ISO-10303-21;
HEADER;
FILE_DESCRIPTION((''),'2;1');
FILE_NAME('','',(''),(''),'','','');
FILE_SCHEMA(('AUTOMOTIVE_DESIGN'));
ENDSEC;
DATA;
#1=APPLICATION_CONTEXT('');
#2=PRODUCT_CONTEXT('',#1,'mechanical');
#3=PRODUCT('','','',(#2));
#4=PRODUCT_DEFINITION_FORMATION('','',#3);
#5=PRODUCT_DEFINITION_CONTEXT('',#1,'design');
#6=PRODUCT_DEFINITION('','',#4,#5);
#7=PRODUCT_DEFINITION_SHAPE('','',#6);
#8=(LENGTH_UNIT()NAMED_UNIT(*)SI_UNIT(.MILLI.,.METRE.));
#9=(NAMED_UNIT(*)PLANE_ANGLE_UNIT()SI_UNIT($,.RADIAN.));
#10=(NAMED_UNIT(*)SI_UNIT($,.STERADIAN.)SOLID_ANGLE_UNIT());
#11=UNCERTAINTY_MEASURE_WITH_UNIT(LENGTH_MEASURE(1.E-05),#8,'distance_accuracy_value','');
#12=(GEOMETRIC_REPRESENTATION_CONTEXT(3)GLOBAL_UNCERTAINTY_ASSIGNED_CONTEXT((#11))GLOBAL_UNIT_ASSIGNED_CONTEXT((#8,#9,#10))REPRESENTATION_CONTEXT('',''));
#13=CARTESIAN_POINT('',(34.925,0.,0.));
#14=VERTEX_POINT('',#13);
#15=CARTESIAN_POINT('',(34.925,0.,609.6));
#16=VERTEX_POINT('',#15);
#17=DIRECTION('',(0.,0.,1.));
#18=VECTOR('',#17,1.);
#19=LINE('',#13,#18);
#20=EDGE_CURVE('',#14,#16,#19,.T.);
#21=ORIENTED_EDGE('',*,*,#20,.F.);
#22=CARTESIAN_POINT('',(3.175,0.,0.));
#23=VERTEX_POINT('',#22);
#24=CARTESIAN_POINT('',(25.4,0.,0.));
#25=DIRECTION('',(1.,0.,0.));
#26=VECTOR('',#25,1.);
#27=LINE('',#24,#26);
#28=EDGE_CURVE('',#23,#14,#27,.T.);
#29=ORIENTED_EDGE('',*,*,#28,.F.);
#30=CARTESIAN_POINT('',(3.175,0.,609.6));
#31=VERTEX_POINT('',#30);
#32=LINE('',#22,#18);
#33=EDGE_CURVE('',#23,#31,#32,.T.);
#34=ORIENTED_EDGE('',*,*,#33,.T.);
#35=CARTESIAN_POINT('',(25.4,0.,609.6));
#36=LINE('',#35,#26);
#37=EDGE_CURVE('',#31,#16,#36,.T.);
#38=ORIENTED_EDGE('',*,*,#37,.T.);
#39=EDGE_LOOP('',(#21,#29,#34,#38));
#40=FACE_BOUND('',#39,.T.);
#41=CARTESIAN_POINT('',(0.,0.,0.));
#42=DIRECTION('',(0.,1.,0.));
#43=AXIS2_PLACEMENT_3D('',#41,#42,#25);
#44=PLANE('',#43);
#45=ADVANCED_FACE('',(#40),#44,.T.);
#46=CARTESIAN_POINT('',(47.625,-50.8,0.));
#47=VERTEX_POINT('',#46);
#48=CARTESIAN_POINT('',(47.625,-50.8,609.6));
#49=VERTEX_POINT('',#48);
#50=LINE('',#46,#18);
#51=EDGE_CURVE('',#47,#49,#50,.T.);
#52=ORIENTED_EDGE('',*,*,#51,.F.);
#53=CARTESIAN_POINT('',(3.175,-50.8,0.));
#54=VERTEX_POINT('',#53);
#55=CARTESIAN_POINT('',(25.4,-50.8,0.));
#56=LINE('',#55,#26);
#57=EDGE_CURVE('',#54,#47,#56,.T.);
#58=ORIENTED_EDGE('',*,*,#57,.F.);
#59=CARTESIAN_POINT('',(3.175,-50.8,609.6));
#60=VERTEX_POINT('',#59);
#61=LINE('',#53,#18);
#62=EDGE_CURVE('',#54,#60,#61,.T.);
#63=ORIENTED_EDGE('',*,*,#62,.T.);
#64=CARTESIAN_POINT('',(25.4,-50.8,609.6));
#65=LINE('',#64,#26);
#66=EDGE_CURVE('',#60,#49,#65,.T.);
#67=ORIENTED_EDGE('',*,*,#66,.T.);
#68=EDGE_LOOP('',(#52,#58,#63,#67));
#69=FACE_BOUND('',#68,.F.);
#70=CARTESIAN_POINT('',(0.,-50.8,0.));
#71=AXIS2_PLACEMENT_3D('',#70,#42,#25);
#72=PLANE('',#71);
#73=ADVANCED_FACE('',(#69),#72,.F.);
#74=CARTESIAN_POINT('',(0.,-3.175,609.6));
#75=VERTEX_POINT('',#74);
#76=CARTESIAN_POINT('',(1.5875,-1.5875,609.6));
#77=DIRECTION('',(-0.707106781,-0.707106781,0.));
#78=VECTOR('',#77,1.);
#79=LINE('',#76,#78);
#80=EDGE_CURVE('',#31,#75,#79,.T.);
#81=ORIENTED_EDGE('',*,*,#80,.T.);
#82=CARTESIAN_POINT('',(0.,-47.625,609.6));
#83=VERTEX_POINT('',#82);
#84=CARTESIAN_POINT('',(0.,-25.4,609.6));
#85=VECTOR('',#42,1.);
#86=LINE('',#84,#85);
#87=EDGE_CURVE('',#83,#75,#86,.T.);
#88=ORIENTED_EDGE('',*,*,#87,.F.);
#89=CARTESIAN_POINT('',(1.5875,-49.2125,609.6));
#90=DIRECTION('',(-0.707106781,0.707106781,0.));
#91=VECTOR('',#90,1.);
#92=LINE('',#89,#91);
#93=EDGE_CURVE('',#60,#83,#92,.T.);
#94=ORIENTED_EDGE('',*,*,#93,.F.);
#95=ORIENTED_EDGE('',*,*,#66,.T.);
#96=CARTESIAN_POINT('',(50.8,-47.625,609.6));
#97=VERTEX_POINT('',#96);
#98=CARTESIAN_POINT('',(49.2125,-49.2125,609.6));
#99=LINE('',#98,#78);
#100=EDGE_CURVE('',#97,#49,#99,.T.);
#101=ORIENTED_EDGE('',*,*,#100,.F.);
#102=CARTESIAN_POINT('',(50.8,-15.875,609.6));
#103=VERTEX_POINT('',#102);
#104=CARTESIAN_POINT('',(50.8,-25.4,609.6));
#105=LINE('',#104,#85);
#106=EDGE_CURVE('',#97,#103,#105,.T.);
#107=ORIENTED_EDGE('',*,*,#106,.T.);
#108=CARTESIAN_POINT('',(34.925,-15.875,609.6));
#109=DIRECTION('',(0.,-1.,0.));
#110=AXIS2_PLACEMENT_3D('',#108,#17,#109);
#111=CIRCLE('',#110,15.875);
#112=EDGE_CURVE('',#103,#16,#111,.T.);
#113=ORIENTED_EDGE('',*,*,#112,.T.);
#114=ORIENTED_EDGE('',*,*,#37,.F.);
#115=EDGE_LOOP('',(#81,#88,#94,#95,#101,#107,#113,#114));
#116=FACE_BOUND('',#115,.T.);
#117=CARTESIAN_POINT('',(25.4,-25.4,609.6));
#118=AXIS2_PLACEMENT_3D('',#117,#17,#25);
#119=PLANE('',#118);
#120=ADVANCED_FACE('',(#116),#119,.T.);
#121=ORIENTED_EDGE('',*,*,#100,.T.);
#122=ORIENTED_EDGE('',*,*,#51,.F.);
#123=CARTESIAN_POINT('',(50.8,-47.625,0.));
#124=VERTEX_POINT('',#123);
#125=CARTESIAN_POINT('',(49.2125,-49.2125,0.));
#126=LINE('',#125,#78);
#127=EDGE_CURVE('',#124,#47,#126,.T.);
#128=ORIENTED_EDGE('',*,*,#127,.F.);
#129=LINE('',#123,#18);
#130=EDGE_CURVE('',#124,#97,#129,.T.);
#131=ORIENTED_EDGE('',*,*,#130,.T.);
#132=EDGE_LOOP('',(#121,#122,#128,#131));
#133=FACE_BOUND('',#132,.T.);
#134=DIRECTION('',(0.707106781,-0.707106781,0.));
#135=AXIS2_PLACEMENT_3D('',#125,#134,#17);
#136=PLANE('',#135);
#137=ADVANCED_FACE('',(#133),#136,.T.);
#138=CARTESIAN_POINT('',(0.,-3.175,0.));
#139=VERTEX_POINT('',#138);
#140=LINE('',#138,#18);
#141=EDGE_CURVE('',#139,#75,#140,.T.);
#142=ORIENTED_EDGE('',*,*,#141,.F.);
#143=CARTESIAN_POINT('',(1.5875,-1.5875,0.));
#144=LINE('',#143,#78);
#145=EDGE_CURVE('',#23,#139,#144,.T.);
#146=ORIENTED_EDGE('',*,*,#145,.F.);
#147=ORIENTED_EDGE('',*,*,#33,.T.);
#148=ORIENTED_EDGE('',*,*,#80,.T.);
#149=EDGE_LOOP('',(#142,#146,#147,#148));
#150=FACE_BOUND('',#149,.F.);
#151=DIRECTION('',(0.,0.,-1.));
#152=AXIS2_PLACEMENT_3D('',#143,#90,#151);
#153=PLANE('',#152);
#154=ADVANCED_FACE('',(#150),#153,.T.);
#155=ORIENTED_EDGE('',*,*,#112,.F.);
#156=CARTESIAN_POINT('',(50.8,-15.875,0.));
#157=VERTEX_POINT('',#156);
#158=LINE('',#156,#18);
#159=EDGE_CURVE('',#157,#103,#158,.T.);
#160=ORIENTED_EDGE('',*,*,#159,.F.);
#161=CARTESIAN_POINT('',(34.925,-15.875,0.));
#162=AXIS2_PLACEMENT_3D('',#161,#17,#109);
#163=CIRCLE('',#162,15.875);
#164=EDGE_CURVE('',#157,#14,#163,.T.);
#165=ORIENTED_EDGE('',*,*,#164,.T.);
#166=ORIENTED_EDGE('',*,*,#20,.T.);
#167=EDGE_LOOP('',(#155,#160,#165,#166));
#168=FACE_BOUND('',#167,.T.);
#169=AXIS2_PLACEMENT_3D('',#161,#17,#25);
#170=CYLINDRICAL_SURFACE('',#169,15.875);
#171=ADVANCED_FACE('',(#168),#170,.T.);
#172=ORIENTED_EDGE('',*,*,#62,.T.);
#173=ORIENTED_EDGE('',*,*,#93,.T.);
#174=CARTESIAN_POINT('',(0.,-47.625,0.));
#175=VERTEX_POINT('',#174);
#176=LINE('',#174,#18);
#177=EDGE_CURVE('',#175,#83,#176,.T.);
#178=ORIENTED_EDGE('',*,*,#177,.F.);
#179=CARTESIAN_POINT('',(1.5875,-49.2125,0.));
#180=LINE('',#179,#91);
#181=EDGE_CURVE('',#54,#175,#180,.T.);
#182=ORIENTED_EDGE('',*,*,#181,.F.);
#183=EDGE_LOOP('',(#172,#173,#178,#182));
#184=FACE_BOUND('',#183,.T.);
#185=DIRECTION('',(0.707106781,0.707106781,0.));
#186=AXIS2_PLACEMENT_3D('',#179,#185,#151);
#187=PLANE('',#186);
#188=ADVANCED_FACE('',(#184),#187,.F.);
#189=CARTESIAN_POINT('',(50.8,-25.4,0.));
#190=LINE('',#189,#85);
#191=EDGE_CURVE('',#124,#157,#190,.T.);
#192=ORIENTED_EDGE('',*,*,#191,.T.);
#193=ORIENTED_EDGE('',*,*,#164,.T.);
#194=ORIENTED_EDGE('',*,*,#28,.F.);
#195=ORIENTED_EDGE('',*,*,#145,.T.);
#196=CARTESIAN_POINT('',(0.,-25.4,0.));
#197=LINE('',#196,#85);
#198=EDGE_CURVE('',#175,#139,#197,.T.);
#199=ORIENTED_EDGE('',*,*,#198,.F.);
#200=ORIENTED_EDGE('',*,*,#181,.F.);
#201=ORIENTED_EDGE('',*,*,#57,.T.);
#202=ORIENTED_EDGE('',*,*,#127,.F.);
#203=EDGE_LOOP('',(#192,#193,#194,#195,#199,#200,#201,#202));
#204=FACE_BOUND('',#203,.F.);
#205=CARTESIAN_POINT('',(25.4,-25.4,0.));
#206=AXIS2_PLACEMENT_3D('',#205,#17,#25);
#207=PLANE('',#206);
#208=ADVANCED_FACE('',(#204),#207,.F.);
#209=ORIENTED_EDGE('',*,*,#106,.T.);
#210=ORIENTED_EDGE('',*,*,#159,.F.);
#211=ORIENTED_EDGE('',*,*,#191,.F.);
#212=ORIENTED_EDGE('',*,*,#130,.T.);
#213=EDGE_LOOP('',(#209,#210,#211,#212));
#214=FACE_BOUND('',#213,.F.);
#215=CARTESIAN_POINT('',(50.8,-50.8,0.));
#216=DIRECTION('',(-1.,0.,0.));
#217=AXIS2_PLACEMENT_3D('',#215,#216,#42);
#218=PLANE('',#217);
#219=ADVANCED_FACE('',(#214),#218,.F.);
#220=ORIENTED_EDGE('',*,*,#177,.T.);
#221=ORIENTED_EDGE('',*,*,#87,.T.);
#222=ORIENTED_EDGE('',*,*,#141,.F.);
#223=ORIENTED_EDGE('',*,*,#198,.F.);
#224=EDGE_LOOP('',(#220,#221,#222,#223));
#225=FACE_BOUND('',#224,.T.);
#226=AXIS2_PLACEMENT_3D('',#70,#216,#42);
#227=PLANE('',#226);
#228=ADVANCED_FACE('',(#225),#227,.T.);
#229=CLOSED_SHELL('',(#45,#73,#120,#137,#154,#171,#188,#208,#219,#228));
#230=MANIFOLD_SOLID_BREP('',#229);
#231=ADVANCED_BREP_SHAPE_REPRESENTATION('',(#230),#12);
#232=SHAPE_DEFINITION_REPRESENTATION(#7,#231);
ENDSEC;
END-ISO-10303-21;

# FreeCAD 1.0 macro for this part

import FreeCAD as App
import Part
import Sketcher
from FreeCAD import Vector
Q = App.Units.Quantity


def edges_at(feature, points):
    """Names of the edges that pass closest to the given points."""
    edges = feature.Shape.Edges
    near = lambda p: min(range(len(edges)), key=lambda i: edges[i].distToShape(Part.Vertex(*p))[0])
    return sorted({f"Edge{near(p) + 1}" for p in points})

doc = App.newDocument("Part")
body = doc.addObject("PartDesign::Body", "Body")

sketch1 = doc.addObject("Sketcher::SketchObject", "Sketch")
body.addObject(sketch1)
sketch1.AttachmentSupport = (doc.XY_Plane, [""])
sketch1.MapMode = "FlatFace"
sketch1.addGeometry([
    Part.LineSegment(Vector(0, 0, 0), Vector(0, -51, 0)),
    Part.LineSegment(Vector(0, -51, 0), Vector(51, -51, 0)),
    Part.LineSegment(Vector(51, -51, 0), Vector(51, 0, 0)),
    Part.LineSegment(Vector(51, 0, 0), Vector(0, 0, 0)),
], False)
sketch1.addConstraint([
    Sketcher.Constraint("Coincident", 0, 2, 1, 1),
    Sketcher.Constraint("Coincident", 1, 2, 2, 1),
    Sketcher.Constraint("Coincident", 2, 2, 3, 1),
    Sketcher.Constraint("Coincident", 3, 2, 0, 1),
    Sketcher.Constraint("Vertical", 0),
    Sketcher.Constraint("Horizontal", 1),
    Sketcher.Constraint("Vertical", 2),
    Sketcher.Constraint("Horizontal", 3),
    Sketcher.Constraint("Coincident", 3, 2, -1, 1),
    Sketcher.Constraint("Equal", 3, 0),
    Sketcher.Constraint("DistanceX", 1, 1, 1, 2, Q("2 in")),
])
pad1 = doc.addObject("PartDesign::Pad", "Pad")
body.addObject(pad1)
pad1.Profile = sketch1
pad1.Length = Q("24 in")
doc.recompute()

fillet = doc.addObject("PartDesign::Fillet", "Fillet")
body.addObject(fillet)
fillet.Base = (pad1, edges_at(pad1, [(50.8, 0, 304.8)]))
fillet.Radius = Q("0.625 in")
doc.recompute()

chamfer = doc.addObject("PartDesign::Chamfer", "Chamfer")
body.addObject(chamfer)
chamfer.Base = (fillet, edges_at(fillet, [(0, 0, 304.8), (0, -50.8, 304.8), (50.8, -50.8, 304.8)]))
chamfer.Size = Q("0.125 in")

doc.recompute()
